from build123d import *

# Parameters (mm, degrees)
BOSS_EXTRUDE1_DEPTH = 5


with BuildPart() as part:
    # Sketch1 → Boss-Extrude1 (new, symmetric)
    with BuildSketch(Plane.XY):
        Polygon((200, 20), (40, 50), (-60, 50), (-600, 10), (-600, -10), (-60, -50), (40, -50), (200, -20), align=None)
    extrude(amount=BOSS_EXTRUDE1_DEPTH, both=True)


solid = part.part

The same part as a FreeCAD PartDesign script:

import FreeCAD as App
import Part
import Sketcher
Q = App.Units.Quantity


def add_polygon(sketch, points):
    """Adds a closed chain of lines whose ends are joined by coincident constraints."""
    first, n = sketch.GeometryCount, len(points)
    for a, b in zip(points, points[1:] + points[:1]):
        sketch.addGeometry(Part.LineSegment(App.Vector(*a, 0), App.Vector(*b, 0)), False)
    for i in range(n):
        sketch.addConstraint(Sketcher.Constraint("Coincident", first + i, 2, first + (i + 1) % n, 1))

doc = App.newDocument("Part")
body = doc.addObject("PartDesign::Body", "Body")

# Sketch on XY plane
sketch1 = body.newObject("Sketcher::SketchObject", "Sketch")
sketch1.AttachmentSupport = (doc.getObject("XY_Plane"), [""])
sketch1.MapMode = "FlatFace"
add_polygon(sketch1, [(200, 20), (40, 50), (-60, 50), (-600, 10), (-600, -10), (-60, -50), (40, -50), (200, -20)])  # lines 0-7
sketch1.addConstraint([
    Sketcher.Constraint("Horizontal", 1),
    Sketcher.Constraint("Vertical", 3),
    Sketcher.Constraint("Horizontal", 5),
    Sketcher.Constraint("Vertical", 7),
    Sketcher.Constraint("Symmetric", 1, 2, 4, 2, -1),
    Sketcher.Constraint("Vertical", 0, 2, 5, 2),
    Sketcher.Constraint("Equal", 2, 4),
    Sketcher.Constraint("Equal", 0, 6),
    Sketcher.Constraint("DistanceX", 1, 2, 1, 1, Q("100 mm")),
    Sketcher.Constraint("DistanceY", 3, 2, 3, 1, Q("20 mm")),
    Sketcher.Constraint("DistanceY", 7, 1, 7, 2, Q("40 mm")),
    Sketcher.Constraint("DistanceX", -1, 1, 0, 2, Q("40 mm")),
    Sketcher.Constraint("DistanceY", -1, 1, 0, 2, Q("50 mm")),
    Sketcher.Constraint("DistanceX", 2, 2, -1, 1, Q("600 mm")),
    Sketcher.Constraint("DistanceX", -1, 1, 6, 2, Q("200 mm")),
])
pad1 = body.newObject("PartDesign::Pad", "Pad")
pad1.Profile = sketch1
pad1.Length = 10
pad1.Midplane = True

doc.recompute()
